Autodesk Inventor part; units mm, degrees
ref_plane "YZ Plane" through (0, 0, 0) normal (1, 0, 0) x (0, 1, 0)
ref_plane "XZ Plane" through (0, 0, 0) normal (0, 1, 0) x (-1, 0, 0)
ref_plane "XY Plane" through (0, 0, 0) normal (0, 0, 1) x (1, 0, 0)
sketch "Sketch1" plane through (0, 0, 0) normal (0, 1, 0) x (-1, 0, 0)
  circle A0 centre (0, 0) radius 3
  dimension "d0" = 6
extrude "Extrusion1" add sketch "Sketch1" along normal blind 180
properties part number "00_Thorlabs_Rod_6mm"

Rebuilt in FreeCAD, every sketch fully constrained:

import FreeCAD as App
import Part
import Sketcher
Q = App.Units.Quantity

doc = App.newDocument("Part")
body = doc.addObject("PartDesign::Body", "Body")

# Sketch on XZ plane
sketch1 = doc.addObject("Sketcher::SketchObject", "Sketch")
body.addObject(sketch1)
sketch1.AttachmentSupport = (doc.XZ_Plane, [""])
sketch1.MapMode = "FlatFace"
sketch1.addGeometry(Part.Circle(App.Vector(0, 0, 0), App.Vector(0, 0, 1), 3), False)
sketch1.addConstraint(Sketcher.Constraint("Coincident", 0, 3, -1, 1))
sketch1.addConstraint(Sketcher.Constraint("Diameter", 0, Q("6 mm")))
pad1 = doc.addObject("PartDesign::Pad", "Pad")
body.addObject(pad1)
pad1.Profile = sketch1
pad1.Length = 180
pad1.Reversed = True

doc.recompute()
